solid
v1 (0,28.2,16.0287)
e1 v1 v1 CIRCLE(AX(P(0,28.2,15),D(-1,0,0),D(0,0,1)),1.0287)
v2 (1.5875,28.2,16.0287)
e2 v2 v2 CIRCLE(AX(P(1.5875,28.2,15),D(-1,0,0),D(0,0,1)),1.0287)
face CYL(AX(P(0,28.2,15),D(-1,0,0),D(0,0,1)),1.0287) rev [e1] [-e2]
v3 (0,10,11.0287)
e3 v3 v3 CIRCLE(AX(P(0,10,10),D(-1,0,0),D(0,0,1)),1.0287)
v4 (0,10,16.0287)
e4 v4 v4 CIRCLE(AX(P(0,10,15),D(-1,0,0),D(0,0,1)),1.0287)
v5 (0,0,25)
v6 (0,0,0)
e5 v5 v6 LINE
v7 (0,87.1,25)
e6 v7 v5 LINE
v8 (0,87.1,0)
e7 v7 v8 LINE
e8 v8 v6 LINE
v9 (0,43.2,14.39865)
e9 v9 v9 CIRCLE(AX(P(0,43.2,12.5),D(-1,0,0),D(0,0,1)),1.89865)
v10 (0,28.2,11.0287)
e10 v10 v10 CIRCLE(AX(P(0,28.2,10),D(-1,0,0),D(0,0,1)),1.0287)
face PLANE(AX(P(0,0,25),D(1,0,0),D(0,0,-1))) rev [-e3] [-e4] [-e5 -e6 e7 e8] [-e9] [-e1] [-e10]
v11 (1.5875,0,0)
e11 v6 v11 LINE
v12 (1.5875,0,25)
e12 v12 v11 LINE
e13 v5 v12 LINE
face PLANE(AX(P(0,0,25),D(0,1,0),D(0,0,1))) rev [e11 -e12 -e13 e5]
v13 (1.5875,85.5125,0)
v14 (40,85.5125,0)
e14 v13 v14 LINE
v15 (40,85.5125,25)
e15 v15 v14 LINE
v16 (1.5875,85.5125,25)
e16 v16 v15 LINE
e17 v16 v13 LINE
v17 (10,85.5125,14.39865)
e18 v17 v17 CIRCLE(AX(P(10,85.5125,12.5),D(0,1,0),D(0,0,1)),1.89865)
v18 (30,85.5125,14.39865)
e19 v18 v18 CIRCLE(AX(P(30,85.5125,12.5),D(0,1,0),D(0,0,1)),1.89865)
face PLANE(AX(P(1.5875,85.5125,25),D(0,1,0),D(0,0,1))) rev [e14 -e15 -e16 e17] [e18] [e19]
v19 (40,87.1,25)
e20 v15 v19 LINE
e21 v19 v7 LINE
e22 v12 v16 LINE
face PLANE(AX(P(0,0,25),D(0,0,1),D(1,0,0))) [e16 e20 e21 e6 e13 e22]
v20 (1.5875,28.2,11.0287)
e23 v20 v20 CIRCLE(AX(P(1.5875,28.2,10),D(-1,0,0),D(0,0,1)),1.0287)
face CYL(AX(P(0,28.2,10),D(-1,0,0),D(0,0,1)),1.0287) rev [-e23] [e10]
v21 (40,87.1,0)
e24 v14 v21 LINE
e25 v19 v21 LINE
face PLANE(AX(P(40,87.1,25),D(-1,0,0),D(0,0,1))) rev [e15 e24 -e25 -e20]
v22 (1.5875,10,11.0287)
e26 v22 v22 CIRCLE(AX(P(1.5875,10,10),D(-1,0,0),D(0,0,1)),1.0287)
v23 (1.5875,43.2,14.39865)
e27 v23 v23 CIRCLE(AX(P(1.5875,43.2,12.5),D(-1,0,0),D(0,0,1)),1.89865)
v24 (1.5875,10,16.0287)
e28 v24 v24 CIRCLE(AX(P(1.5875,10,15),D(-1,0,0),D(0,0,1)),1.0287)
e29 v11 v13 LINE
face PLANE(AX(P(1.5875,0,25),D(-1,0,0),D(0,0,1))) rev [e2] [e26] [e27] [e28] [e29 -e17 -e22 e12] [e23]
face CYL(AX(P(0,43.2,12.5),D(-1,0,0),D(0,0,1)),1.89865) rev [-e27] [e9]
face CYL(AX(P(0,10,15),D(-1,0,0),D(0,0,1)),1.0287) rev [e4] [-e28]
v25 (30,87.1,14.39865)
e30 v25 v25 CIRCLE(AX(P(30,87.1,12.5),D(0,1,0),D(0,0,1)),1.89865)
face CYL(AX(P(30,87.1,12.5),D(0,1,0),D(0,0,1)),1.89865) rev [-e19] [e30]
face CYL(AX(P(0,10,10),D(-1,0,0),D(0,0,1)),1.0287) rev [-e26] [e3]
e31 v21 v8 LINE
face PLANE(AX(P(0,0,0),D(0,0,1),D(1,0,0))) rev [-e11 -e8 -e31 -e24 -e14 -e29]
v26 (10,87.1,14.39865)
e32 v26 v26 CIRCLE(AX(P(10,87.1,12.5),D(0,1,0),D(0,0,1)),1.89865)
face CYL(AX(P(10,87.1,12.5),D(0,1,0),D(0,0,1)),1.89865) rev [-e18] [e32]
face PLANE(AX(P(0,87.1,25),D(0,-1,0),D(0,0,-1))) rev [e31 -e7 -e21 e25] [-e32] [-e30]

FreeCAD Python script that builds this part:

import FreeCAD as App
import Part
import Sketcher
from FreeCAD import Vector
Q = App.Units.Quantity


def add_polygon(sketch, points):
    """Adds a closed chain of lines whose ends are joined by coincident constraints."""
    first, n = sketch.GeometryCount, len(points)
    for a, b in zip(points, points[1:] + points[:1]):
        sketch.addGeometry(Part.LineSegment(App.Vector(*a, 0), App.Vector(*b, 0)), False)
    for i in range(n):
        sketch.addConstraint(Sketcher.Constraint("Coincident", first + i, 2, first + (i + 1) % n, 1))

doc = App.newDocument("Part")
body = doc.addObject("PartDesign::Body", "Body")

# Sketch on XY plane
sketch1 = doc.addObject("Sketcher::SketchObject", "Sketch")
body.addObject(sketch1)
sketch1.AttachmentSupport = (doc.XY_Plane, [""])
sketch1.MapMode = "FlatFace"
add_polygon(sketch1, [(0, 87.1), (0, 0), (1.5875, 0), (1.5875, 85.5125), (40, 85.5125), (40, 87.1)])  # lines 0-5
sketch1.addConstraint(Sketcher.Constraint("Vertical", 0))
sketch1.addConstraint(Sketcher.Constraint("Horizontal", 1))
sketch1.addConstraint(Sketcher.Constraint("Vertical", 2))
sketch1.addConstraint(Sketcher.Constraint("Horizontal", 3))
sketch1.addConstraint(Sketcher.Constraint("Vertical", 4))
sketch1.addConstraint(Sketcher.Constraint("Horizontal", 5))
sketch1.addConstraint(Sketcher.Constraint("Coincident", 0, 2, -1, 1))
sketch1.addConstraint(Sketcher.Constraint("Equal", 1, 4))
sketch1.addConstraint(Sketcher.Constraint("DistanceX", 5, 2, 5, 1, Q("40 mm")))
sketch1.addConstraint(Sketcher.Constraint("DistanceY", 0, 2, 0, 1, Q("87.1 mm")))
sketch1.addConstraint(Sketcher.Constraint("DistanceX", 1, 1, 1, 2, Q("1.5875 mm")))
pad1 = doc.addObject("PartDesign::Pad", "Pad")
body.addObject(pad1)
pad1.Profile = sketch1
pad1.Length = 25

# Sketch on XZ plane
sketch2 = doc.addObject("Sketcher::SketchObject", "Sketch001")
body.addObject(sketch2)
sketch2.AttachmentSupport = (doc.XZ_Plane, [""])
sketch2.MapMode = "FlatFace"
sketch2.AttachmentOffset = App.Placement(Vector(0, 0, -87.1), App.Rotation())
sketch2.addGeometry(Part.Circle(Vector(10, 12.5, 0), Vector(0, 0, 1), 1.89865), False)
sketch2.addGeometry(Part.Circle(Vector(30, 12.5, 0), Vector(0, 0, 1), 1.89865), False)
sketch2.addConstraint(Sketcher.Constraint("Equal", 0, 1))
sketch2.addConstraint(Sketcher.Constraint("Horizontal", 0, 3, 1, 3))
sketch2.addConstraint(Sketcher.Constraint("DistanceX", -1, 1, 0, 3, Q("10 mm")))
sketch2.addConstraint(Sketcher.Constraint("DistanceX", -1, 1, 1, 3, Q("30 mm")))
sketch2.addConstraint(Sketcher.Constraint("Diameter", 0, Q("3.7973 mm")))
sketch2.addConstraint(Sketcher.Constraint("DistanceY", -1, 1, 0, 3, Q("12.5 mm")))
doc.recompute()
hole = doc.addObject("PartDesign::Hole", "Hole")
body.addObject(hole)
hole.Profile = sketch2
hole.ThreadType = "None"
hole.Diameter = 3.7973
hole.DepthType = "ThroughAll"
hole.Reversed = True

# Sketch on YZ plane
sketch3 = doc.addObject("Sketcher::SketchObject", "Sketch002")
body.addObject(sketch3)
sketch3.AttachmentSupport = (doc.YZ_Plane, [""])
sketch3.MapMode = "FlatFace"
sketch3.addGeometry(Part.Circle(Vector(10, 15, 0), Vector(0, 0, 1), 1.0287), False)
sketch3.addGeometry(Part.Circle(Vector(28.2, 15, 0), Vector(0, 0, 1), 1.0287), False)
sketch3.addGeometry(Part.Circle(Vector(10, 10, 0), Vector(0, 0, 1), 1.0287), False)
sketch3.addGeometry(Part.Circle(Vector(28.2, 10, 0), Vector(0, 0, 1), 1.0287), False)
sketch3.addConstraint(Sketcher.Constraint("Equal", 0, 1))
sketch3.addConstraint(Sketcher.Constraint("Equal", 1, 2))
sketch3.addConstraint(Sketcher.Constraint("Equal", 2, 3))
sketch3.addConstraint(Sketcher.Constraint("Horizontal", 0, 3, 1, 3))
sketch3.addConstraint(Sketcher.Constraint("Horizontal", 2, 3, 3, 3))
sketch3.addConstraint(Sketcher.Constraint("Vertical", 0, 3, 2, 3))
sketch3.addConstraint(Sketcher.Constraint("Vertical", 1, 3, 3, 3))
sketch3.addConstraint(Sketcher.Constraint("DistanceX", -1, 1, 0, 3, Q("10 mm")))
sketch3.addConstraint(Sketcher.Constraint("DistanceY", -1, 1, 0, 3, Q("15 mm")))
sketch3.addConstraint(Sketcher.Constraint("DistanceY", -1, 1, 2, 3, Q("10 mm")))
sketch3.addConstraint(Sketcher.Constraint("Diameter", 0, Q("2.0574 mm")))
sketch3.addConstraint(Sketcher.Constraint("DistanceX", -1, 1, 1, 3, Q("28.2 mm")))
doc.recompute()
hole2 = doc.addObject("PartDesign::Hole", "Hole001")
body.addObject(hole2)
hole2.Profile = sketch3
hole2.ThreadType = "None"
hole2.Diameter = 2.0574
hole2.DepthType = "ThroughAll"
hole2.Reversed = True

# Sketch on YZ plane
sketch4 = doc.addObject("Sketcher::SketchObject", "Sketch003")
body.addObject(sketch4)
sketch4.AttachmentSupport = (doc.YZ_Plane, [""])
sketch4.MapMode = "FlatFace"
sketch4.addGeometry(Part.Circle(Vector(43.2, 12.5, 0), Vector(0, 0, 1), 1.89865), False)
sketch4.addConstraint(Sketcher.Constraint("Diameter", 0, Q("3.7973 mm")))
sketch4.addConstraint(Sketcher.Constraint("DistanceX", -1, 1, 0, 3, Q("43.2 mm")))
sketch4.addConstraint(Sketcher.Constraint("DistanceY", -1, 1, 0, 3, Q("12.5 mm")))
doc.recompute()
hole3 = doc.addObject("PartDesign::Hole", "Hole002")
body.addObject(hole3)
hole3.Profile = sketch4
hole3.ThreadType = "None"
hole3.Diameter = 3.7973
hole3.DepthType = "ThroughAll"
hole3.Reversed = True

doc.recompute()
